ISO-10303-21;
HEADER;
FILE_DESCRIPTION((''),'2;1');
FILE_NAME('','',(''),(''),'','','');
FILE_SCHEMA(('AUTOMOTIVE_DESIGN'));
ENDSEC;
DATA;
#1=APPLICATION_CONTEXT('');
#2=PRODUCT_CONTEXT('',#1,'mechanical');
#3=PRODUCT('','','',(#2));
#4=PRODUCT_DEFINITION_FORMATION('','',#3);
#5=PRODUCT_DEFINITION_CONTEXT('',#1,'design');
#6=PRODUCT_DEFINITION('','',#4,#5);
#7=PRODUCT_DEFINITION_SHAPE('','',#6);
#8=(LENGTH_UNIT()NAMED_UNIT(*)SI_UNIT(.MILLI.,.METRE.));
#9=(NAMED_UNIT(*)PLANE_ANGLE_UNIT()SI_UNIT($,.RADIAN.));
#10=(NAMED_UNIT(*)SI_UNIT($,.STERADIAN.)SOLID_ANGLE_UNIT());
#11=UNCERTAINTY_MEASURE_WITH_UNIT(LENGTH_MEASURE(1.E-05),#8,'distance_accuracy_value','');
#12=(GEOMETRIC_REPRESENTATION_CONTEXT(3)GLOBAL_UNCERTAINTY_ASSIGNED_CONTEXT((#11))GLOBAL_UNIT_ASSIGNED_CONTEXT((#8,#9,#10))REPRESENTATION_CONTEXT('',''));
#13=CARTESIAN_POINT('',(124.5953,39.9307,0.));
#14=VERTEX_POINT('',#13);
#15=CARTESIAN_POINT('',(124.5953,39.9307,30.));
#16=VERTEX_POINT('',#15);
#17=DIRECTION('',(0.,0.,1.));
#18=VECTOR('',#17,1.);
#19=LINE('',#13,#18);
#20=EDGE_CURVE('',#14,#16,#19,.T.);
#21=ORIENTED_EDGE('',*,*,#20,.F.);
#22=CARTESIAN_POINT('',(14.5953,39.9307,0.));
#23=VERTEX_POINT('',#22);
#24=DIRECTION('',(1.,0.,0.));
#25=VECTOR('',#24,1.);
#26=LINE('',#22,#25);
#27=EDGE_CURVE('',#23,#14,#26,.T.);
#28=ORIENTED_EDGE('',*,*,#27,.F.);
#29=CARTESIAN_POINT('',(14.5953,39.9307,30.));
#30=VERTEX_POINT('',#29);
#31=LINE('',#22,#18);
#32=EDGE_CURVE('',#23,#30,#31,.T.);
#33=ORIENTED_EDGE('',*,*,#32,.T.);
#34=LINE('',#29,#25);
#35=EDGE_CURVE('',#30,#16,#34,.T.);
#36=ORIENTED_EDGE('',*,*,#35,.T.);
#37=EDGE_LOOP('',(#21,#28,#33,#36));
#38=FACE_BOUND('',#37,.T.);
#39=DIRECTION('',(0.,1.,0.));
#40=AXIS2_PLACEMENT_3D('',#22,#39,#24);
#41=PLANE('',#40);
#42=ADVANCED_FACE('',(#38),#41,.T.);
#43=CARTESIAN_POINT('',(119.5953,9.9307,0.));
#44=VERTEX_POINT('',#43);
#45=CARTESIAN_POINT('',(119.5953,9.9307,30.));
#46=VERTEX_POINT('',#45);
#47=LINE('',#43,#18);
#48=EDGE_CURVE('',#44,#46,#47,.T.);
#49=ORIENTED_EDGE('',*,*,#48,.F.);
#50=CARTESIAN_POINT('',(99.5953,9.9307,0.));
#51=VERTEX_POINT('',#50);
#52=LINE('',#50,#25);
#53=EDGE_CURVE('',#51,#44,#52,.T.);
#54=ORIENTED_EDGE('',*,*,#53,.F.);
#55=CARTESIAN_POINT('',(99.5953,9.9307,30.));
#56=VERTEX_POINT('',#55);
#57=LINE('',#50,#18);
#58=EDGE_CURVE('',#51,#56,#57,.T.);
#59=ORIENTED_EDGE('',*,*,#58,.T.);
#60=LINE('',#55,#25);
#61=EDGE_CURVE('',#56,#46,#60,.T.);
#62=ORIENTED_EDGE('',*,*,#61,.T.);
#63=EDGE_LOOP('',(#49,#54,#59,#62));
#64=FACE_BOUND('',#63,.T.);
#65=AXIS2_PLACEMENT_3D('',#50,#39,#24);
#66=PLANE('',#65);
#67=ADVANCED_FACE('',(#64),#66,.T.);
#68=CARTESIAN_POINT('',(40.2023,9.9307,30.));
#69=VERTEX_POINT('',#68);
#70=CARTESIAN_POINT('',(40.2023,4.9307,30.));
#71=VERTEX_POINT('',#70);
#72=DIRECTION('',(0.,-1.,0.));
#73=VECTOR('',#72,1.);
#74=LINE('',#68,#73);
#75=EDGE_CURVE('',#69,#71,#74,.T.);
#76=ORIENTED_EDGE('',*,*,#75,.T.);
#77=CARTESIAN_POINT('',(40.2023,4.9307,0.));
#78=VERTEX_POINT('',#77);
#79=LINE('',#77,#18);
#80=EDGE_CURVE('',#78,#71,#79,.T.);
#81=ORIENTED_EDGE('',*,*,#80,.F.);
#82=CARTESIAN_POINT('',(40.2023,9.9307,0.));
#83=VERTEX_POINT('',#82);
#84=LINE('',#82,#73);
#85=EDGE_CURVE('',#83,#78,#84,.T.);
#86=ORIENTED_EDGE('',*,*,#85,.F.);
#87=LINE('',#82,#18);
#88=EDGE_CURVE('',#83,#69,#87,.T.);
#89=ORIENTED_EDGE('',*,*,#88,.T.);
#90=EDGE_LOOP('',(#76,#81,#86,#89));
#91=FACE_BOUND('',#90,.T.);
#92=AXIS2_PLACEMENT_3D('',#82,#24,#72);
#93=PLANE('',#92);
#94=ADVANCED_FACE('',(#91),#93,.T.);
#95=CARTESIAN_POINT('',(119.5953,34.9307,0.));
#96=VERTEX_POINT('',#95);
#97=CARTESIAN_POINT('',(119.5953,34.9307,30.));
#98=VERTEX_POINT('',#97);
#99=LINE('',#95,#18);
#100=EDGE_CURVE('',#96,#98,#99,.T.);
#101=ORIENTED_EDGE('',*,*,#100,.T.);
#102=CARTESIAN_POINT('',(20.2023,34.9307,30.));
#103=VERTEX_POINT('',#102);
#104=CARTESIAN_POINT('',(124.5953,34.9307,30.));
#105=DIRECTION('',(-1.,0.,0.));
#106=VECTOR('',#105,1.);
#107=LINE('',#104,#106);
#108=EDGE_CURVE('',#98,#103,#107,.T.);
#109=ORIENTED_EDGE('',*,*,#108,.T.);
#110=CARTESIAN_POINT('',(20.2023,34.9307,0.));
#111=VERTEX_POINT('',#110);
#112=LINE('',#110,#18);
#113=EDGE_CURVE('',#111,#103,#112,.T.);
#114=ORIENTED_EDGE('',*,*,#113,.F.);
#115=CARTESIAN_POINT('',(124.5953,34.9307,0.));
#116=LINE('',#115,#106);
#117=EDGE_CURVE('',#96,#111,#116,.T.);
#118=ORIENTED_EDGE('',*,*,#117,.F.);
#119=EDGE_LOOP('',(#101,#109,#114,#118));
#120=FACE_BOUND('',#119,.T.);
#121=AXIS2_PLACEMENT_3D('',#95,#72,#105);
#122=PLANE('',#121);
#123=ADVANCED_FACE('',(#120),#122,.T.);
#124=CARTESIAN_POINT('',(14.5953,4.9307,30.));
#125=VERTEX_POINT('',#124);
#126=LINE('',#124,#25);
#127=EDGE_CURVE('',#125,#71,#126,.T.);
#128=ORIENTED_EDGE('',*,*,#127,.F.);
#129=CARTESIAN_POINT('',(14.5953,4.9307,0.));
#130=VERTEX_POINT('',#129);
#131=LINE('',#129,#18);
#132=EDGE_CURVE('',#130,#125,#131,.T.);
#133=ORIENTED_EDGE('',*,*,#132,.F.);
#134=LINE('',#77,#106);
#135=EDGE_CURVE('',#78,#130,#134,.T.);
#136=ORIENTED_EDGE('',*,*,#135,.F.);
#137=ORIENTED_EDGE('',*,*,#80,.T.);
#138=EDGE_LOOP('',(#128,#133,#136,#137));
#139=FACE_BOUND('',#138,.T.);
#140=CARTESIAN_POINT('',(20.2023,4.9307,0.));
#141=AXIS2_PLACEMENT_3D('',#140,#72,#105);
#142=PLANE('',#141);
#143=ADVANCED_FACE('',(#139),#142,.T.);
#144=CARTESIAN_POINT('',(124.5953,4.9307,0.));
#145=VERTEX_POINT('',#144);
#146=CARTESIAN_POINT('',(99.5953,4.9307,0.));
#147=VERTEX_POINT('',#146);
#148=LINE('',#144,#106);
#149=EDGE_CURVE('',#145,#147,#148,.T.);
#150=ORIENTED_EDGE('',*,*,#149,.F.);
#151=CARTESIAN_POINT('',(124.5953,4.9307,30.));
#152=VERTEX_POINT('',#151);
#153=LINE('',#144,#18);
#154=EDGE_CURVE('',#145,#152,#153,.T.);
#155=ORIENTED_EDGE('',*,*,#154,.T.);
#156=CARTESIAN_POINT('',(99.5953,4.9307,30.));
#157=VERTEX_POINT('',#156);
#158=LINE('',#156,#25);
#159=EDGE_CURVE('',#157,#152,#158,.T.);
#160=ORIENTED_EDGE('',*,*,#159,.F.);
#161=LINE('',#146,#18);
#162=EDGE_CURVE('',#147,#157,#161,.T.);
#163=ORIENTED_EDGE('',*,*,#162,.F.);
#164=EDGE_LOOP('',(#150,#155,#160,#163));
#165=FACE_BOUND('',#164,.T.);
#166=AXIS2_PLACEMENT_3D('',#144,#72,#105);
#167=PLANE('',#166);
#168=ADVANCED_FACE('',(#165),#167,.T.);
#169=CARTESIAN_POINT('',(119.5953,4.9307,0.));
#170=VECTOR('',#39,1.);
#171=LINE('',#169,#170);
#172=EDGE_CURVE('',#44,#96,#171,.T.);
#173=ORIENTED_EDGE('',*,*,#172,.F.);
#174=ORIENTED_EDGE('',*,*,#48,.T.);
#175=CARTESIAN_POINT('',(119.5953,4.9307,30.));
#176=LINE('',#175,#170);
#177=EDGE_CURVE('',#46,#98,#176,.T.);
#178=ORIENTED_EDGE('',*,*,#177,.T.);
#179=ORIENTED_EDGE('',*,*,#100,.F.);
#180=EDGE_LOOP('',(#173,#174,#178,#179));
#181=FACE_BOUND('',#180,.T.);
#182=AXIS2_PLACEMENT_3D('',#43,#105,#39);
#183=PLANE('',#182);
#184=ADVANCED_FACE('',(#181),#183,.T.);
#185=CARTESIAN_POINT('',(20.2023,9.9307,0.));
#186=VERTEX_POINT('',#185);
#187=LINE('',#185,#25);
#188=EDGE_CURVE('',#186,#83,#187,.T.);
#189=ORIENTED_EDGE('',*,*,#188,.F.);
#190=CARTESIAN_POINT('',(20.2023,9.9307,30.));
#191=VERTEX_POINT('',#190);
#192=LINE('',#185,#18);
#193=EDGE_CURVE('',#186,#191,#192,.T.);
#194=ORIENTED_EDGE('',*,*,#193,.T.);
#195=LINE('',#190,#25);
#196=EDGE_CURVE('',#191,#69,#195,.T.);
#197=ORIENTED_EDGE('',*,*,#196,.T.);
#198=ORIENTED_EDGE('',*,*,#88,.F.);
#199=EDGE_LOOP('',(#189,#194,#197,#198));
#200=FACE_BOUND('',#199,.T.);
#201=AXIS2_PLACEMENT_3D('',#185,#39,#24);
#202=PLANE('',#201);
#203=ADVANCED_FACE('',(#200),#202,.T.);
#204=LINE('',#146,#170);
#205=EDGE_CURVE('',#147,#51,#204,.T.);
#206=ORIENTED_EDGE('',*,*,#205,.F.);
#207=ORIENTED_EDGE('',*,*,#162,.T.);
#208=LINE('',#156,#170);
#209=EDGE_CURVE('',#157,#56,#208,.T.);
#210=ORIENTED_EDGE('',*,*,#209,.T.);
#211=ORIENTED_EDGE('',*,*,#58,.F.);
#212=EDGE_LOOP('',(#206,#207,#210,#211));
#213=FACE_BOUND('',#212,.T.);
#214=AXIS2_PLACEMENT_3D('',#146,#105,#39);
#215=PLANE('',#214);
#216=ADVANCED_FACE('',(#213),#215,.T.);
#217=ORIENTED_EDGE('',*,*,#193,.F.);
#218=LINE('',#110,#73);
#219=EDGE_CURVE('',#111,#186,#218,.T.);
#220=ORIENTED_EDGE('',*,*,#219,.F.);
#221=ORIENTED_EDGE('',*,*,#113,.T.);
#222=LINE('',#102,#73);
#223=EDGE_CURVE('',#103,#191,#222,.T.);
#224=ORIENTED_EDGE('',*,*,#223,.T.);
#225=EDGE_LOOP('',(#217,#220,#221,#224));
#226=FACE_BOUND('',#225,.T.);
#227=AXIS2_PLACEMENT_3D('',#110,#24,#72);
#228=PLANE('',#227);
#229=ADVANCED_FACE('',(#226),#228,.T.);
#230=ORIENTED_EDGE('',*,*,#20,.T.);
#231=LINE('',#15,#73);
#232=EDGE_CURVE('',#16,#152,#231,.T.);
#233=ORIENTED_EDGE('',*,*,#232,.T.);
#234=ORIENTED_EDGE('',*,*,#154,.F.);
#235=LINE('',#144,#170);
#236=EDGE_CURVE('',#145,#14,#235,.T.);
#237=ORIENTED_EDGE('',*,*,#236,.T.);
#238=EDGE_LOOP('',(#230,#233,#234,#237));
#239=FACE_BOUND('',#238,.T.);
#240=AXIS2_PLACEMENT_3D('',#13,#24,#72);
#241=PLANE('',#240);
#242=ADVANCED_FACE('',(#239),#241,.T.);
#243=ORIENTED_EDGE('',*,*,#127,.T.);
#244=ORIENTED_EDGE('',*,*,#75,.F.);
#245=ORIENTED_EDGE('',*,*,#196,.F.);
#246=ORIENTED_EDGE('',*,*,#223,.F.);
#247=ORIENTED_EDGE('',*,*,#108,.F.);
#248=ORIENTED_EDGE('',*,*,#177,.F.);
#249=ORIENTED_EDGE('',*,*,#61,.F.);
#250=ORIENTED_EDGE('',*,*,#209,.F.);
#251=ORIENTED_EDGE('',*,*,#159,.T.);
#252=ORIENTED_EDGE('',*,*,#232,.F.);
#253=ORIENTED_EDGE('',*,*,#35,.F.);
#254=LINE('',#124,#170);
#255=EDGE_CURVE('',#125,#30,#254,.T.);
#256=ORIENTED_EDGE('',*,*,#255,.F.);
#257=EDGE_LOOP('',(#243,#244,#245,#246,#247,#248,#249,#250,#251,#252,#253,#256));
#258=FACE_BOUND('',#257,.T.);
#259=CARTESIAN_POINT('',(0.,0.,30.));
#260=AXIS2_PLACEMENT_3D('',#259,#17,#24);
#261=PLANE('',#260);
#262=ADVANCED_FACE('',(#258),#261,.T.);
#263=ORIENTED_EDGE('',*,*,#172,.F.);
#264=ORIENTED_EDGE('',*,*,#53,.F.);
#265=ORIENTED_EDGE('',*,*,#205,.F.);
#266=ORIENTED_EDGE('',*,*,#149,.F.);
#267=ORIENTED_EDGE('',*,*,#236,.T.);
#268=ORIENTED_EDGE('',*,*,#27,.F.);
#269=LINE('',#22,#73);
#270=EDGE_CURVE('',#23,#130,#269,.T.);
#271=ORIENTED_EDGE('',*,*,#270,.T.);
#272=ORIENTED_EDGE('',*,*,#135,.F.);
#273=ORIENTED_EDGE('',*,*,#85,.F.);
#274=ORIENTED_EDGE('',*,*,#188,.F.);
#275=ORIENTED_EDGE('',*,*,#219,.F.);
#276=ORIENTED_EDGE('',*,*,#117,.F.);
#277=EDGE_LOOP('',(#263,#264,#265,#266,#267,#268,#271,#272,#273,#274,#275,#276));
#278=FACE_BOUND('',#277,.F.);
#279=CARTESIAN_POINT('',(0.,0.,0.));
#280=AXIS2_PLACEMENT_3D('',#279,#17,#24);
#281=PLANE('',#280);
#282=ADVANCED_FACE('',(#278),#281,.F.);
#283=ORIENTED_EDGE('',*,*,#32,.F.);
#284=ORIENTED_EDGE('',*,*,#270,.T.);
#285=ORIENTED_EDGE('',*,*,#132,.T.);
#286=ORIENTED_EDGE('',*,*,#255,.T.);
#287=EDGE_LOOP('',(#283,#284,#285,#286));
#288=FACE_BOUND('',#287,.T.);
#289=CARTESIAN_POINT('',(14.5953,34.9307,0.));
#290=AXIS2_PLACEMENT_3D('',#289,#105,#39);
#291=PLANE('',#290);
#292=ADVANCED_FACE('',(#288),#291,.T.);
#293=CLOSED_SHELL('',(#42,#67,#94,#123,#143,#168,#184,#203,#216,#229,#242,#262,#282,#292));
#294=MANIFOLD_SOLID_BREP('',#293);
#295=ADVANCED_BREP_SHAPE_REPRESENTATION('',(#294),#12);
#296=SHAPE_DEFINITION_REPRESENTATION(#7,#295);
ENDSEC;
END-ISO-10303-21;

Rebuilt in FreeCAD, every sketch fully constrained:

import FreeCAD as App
import Part
import Sketcher
Q = App.Units.Quantity

doc = App.newDocument("Part")
params = doc.addObject("Spreadsheet::Sheet", "Params")
for row, (alias, value) in enumerate([
    ("sketch1_width", "110 mm"),
    ("sketch1_width2", "20 mm"),
    ("sketch1_height", "5 mm"),
    ("pad1_length", "30 mm"),
], start=1):
    params.set(f"A{row}", alias)
    params.set(f"B{row}", "=" + value)
    params.setAlias(f"B{row}", alias)

body = doc.addObject("PartDesign::Body", "Body")

# Sketch on XY plane
sketch1 = body.newObject("Sketcher::SketchObject", "Sketch")
sketch1.AttachmentSupport = (doc.getObject("XY_Plane"), [""])
sketch1.MapMode = "FlatFace"
sketch1.addGeometry(Part.LineSegment(App.Vector(125, 40, 0), App.Vector(15, 40, 0)), False)
sketch1.addGeometry(Part.LineSegment(App.Vector(15, 40, 0), App.Vector(15, 5, 0)), False)
sketch1.addGeometry(Part.LineSegment(App.Vector(15, 5, 0), App.Vector(40, 5, 0)), False)
sketch1.addGeometry(Part.LineSegment(App.Vector(40, 5, 0), App.Vector(40, 10, 0)), False)
sketch1.addGeometry(Part.LineSegment(App.Vector(40, 10, 0), App.Vector(20, 10, 0)), False)
sketch1.addGeometry(Part.LineSegment(App.Vector(20, 10, 0), App.Vector(20, 35, 0)), False)
sketch1.addGeometry(Part.LineSegment(App.Vector(20, 35, 0), App.Vector(120, 35, 0)), False)
sketch1.addGeometry(Part.LineSegment(App.Vector(120, 35, 0), App.Vector(120, 10, 0)), False)
sketch1.addGeometry(Part.LineSegment(App.Vector(120, 10, 0), App.Vector(100, 10, 0)), False)
sketch1.addGeometry(Part.LineSegment(App.Vector(100, 10, 0), App.Vector(100, 5, 0)), False)
sketch1.addGeometry(Part.LineSegment(App.Vector(100, 5, 0), App.Vector(125, 5, 0)), False)
sketch1.addGeometry(Part.LineSegment(App.Vector(125, 5, 0), App.Vector(125, 40, 0)), False)
sketch1.addConstraint(Sketcher.Constraint("Coincident", 0, 2, 1, 1))
sketch1.addConstraint(Sketcher.Constraint("Coincident", 1, 2, 2, 1))
sketch1.addConstraint(Sketcher.Constraint("Coincident", 2, 2, 3, 1))
sketch1.addConstraint(Sketcher.Constraint("Coincident", 3, 2, 4, 1))
sketch1.addConstraint(Sketcher.Constraint("Coincident", 4, 2, 5, 1))
sketch1.addConstraint(Sketcher.Constraint("Coincident", 5, 2, 6, 1))
sketch1.addConstraint(Sketcher.Constraint("Coincident", 6, 2, 7, 1))
sketch1.addConstraint(Sketcher.Constraint("Coincident", 7, 2, 8, 1))
sketch1.addConstraint(Sketcher.Constraint("Coincident", 8, 2, 9, 1))
sketch1.addConstraint(Sketcher.Constraint("Coincident", 9, 2, 10, 1))
sketch1.addConstraint(Sketcher.Constraint("Coincident", 10, 2, 11, 1))
sketch1.addConstraint(Sketcher.Constraint("Coincident", 11, 2, 0, 1))
sketch1.addConstraint(Sketcher.Constraint("Horizontal", 0))
sketch1.addConstraint(Sketcher.Constraint("Vertical", 1))
sketch1.addConstraint(Sketcher.Constraint("Horizontal", 2))
sketch1.addConstraint(Sketcher.Constraint("Vertical", 3))
sketch1.addConstraint(Sketcher.Constraint("Horizontal", 4))
sketch1.addConstraint(Sketcher.Constraint("Vertical", 5))
sketch1.addConstraint(Sketcher.Constraint("Horizontal", 6))
sketch1.addConstraint(Sketcher.Constraint("Vertical", 7))
sketch1.addConstraint(Sketcher.Constraint("Horizontal", 8))
sketch1.addConstraint(Sketcher.Constraint("Vertical", 9))
sketch1.addConstraint(Sketcher.Constraint("Horizontal", 10))
sketch1.addConstraint(Sketcher.Constraint("Vertical", 11))
sketch1.addConstraint(Sketcher.Constraint("Horizontal", 4, 2, 7, 2))
sketch1.addConstraint(Sketcher.Constraint("Horizontal", 2, 2, 9, 2))
sketch1.addConstraint(Sketcher.Constraint("Equal", 4, 8))
sketch1.addConstraint(Sketcher.Constraint("Equal", 10, 5))
sketch1.addConstraint(Sketcher.Constraint("DistanceX", 0, 2, 0, 1, Q("110 mm")))
sketch1.addConstraint(Sketcher.Constraint("DistanceX", 4, 2, 4, 1, Q("20 mm")))
sketch1.addConstraint(Sketcher.Constraint("DistanceY", 3, 1, 3, 2, Q("5 mm")))
sketch1.addConstraint(Sketcher.Constraint("DistanceY", 3, 2, 0, 2, Q("30 mm")))
sketch1.addConstraint(Sketcher.Constraint("DistanceY", 5, 2, 0, 2, Q("5 mm")))
sketch1.addConstraint(Sketcher.Constraint("DistanceX", 2, 1, 2, 2, Q("25.607 mm")))
sketch1.addConstraint(Sketcher.Constraint("DistanceX", -1, 1, 0, 2, Q("14.5953 mm")))
sketch1.addConstraint(Sketcher.Constraint("DistanceY", -1, 1, 0, 2, Q("39.9307 mm")))
sketch1.setExpression("Constraints[28]", "Params.sketch1_width")
sketch1.setExpression("Constraints[29]", "Params.sketch1_width2")
sketch1.setExpression("Constraints[30]", "Params.sketch1_height")
pad1 = body.newObject("PartDesign::Pad", "Pad")
pad1.Profile = sketch1
pad1.setExpression("Length", "Params.pad1_length")

doc.recompute()
